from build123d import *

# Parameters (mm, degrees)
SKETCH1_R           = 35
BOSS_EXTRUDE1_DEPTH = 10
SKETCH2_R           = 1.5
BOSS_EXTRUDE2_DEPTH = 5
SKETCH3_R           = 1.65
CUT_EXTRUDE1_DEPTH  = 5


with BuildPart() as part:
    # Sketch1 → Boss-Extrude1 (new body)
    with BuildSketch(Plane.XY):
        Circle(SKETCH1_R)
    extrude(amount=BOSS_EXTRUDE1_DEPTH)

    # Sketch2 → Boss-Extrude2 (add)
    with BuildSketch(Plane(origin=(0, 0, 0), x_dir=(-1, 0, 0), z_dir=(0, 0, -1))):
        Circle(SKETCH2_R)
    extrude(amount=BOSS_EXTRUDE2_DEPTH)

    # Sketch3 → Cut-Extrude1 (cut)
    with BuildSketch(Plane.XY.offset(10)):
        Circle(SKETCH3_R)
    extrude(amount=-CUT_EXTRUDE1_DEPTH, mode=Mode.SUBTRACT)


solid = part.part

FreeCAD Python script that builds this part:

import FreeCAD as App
import Part
import Sketcher
from FreeCAD import Vector
Q = App.Units.Quantity

doc = App.newDocument("Part")
params = doc.addObject("Spreadsheet::Sheet", "Params")
for row, (alias, value) in enumerate([
    ("sketch1_diameter", "70 mm"),
    ("pad1_length", "10 mm"),
    ("sketch2_diameter", "3 mm"),
    ("pad2_length", "5 mm"),
    ("sketch3_diameter", "3.3 mm"),
    ("pocket1_length", "5 mm"),
], start=1):
    params.set(f"A{row}", alias)
    params.set(f"B{row}", "=" + value)
    params.setAlias(f"B{row}", alias)

body = doc.addObject("PartDesign::Body", "Body")

sketch1 = body.newObject("Sketcher::SketchObject", "Sketch")
sketch1.AttachmentSupport = (doc.getObject("XY_Plane"), [""])
sketch1.MapMode = "FlatFace"
sketch1.addGeometry(Part.Circle(Vector(0, 0, 0), Vector(0, 0, 1), 35), False)
sketch1.addConstraint(Sketcher.Constraint("Coincident", 0, 3, -1, 1))
sketch1.addConstraint(Sketcher.Constraint("Diameter", 0, Q("70 mm")))
sketch1.setExpression("Constraints[1]", "Params.sketch1_diameter")
pad1 = body.newObject("PartDesign::Pad", "Pad")
pad1.Profile = sketch1
pad1.setExpression("Length", "Params.pad1_length")

sketch2 = body.newObject("Sketcher::SketchObject", "Sketch001")
sketch2.AttachmentSupport = (doc.getObject("XY_Plane"), [""])
sketch2.MapMode = "FlatFace"
sketch2.addGeometry(Part.Circle(Vector(0, 0, 0), Vector(0, 0, 1), 1.5), False)
sketch2.addConstraint(Sketcher.Constraint("Coincident", 0, 3, -1, 1))
sketch2.addConstraint(Sketcher.Constraint("Diameter", 0, Q("3 mm")))
sketch2.setExpression("Constraints[1]", "Params.sketch2_diameter")
pad2 = body.newObject("PartDesign::Pad", "Pad001")
pad2.Profile = sketch2
pad2.setExpression("Length", "Params.pad2_length")
pad2.Reversed = True

sketch3 = body.newObject("Sketcher::SketchObject", "Sketch002")
sketch3.AttachmentSupport = (doc.getObject("XY_Plane"), [""])
sketch3.MapMode = "FlatFace"
sketch3.AttachmentOffset = App.Placement(Vector(0, 0, 10), App.Rotation())
sketch3.addGeometry(Part.Circle(Vector(0, 0, 0), Vector(0, 0, 1), 1.6), False)
sketch3.addConstraint(Sketcher.Constraint("Coincident", 0, 3, -1, 1))
sketch3.addConstraint(Sketcher.Constraint("Diameter", 0, Q("3.3 mm")))
sketch3.setExpression("Constraints[1]", "Params.sketch3_diameter")
pocket1 = body.newObject("PartDesign::Pocket", "Pocket")
pocket1.Profile = sketch3
pocket1.setExpression("Length", "Params.pocket1_length")

doc.recompute()
